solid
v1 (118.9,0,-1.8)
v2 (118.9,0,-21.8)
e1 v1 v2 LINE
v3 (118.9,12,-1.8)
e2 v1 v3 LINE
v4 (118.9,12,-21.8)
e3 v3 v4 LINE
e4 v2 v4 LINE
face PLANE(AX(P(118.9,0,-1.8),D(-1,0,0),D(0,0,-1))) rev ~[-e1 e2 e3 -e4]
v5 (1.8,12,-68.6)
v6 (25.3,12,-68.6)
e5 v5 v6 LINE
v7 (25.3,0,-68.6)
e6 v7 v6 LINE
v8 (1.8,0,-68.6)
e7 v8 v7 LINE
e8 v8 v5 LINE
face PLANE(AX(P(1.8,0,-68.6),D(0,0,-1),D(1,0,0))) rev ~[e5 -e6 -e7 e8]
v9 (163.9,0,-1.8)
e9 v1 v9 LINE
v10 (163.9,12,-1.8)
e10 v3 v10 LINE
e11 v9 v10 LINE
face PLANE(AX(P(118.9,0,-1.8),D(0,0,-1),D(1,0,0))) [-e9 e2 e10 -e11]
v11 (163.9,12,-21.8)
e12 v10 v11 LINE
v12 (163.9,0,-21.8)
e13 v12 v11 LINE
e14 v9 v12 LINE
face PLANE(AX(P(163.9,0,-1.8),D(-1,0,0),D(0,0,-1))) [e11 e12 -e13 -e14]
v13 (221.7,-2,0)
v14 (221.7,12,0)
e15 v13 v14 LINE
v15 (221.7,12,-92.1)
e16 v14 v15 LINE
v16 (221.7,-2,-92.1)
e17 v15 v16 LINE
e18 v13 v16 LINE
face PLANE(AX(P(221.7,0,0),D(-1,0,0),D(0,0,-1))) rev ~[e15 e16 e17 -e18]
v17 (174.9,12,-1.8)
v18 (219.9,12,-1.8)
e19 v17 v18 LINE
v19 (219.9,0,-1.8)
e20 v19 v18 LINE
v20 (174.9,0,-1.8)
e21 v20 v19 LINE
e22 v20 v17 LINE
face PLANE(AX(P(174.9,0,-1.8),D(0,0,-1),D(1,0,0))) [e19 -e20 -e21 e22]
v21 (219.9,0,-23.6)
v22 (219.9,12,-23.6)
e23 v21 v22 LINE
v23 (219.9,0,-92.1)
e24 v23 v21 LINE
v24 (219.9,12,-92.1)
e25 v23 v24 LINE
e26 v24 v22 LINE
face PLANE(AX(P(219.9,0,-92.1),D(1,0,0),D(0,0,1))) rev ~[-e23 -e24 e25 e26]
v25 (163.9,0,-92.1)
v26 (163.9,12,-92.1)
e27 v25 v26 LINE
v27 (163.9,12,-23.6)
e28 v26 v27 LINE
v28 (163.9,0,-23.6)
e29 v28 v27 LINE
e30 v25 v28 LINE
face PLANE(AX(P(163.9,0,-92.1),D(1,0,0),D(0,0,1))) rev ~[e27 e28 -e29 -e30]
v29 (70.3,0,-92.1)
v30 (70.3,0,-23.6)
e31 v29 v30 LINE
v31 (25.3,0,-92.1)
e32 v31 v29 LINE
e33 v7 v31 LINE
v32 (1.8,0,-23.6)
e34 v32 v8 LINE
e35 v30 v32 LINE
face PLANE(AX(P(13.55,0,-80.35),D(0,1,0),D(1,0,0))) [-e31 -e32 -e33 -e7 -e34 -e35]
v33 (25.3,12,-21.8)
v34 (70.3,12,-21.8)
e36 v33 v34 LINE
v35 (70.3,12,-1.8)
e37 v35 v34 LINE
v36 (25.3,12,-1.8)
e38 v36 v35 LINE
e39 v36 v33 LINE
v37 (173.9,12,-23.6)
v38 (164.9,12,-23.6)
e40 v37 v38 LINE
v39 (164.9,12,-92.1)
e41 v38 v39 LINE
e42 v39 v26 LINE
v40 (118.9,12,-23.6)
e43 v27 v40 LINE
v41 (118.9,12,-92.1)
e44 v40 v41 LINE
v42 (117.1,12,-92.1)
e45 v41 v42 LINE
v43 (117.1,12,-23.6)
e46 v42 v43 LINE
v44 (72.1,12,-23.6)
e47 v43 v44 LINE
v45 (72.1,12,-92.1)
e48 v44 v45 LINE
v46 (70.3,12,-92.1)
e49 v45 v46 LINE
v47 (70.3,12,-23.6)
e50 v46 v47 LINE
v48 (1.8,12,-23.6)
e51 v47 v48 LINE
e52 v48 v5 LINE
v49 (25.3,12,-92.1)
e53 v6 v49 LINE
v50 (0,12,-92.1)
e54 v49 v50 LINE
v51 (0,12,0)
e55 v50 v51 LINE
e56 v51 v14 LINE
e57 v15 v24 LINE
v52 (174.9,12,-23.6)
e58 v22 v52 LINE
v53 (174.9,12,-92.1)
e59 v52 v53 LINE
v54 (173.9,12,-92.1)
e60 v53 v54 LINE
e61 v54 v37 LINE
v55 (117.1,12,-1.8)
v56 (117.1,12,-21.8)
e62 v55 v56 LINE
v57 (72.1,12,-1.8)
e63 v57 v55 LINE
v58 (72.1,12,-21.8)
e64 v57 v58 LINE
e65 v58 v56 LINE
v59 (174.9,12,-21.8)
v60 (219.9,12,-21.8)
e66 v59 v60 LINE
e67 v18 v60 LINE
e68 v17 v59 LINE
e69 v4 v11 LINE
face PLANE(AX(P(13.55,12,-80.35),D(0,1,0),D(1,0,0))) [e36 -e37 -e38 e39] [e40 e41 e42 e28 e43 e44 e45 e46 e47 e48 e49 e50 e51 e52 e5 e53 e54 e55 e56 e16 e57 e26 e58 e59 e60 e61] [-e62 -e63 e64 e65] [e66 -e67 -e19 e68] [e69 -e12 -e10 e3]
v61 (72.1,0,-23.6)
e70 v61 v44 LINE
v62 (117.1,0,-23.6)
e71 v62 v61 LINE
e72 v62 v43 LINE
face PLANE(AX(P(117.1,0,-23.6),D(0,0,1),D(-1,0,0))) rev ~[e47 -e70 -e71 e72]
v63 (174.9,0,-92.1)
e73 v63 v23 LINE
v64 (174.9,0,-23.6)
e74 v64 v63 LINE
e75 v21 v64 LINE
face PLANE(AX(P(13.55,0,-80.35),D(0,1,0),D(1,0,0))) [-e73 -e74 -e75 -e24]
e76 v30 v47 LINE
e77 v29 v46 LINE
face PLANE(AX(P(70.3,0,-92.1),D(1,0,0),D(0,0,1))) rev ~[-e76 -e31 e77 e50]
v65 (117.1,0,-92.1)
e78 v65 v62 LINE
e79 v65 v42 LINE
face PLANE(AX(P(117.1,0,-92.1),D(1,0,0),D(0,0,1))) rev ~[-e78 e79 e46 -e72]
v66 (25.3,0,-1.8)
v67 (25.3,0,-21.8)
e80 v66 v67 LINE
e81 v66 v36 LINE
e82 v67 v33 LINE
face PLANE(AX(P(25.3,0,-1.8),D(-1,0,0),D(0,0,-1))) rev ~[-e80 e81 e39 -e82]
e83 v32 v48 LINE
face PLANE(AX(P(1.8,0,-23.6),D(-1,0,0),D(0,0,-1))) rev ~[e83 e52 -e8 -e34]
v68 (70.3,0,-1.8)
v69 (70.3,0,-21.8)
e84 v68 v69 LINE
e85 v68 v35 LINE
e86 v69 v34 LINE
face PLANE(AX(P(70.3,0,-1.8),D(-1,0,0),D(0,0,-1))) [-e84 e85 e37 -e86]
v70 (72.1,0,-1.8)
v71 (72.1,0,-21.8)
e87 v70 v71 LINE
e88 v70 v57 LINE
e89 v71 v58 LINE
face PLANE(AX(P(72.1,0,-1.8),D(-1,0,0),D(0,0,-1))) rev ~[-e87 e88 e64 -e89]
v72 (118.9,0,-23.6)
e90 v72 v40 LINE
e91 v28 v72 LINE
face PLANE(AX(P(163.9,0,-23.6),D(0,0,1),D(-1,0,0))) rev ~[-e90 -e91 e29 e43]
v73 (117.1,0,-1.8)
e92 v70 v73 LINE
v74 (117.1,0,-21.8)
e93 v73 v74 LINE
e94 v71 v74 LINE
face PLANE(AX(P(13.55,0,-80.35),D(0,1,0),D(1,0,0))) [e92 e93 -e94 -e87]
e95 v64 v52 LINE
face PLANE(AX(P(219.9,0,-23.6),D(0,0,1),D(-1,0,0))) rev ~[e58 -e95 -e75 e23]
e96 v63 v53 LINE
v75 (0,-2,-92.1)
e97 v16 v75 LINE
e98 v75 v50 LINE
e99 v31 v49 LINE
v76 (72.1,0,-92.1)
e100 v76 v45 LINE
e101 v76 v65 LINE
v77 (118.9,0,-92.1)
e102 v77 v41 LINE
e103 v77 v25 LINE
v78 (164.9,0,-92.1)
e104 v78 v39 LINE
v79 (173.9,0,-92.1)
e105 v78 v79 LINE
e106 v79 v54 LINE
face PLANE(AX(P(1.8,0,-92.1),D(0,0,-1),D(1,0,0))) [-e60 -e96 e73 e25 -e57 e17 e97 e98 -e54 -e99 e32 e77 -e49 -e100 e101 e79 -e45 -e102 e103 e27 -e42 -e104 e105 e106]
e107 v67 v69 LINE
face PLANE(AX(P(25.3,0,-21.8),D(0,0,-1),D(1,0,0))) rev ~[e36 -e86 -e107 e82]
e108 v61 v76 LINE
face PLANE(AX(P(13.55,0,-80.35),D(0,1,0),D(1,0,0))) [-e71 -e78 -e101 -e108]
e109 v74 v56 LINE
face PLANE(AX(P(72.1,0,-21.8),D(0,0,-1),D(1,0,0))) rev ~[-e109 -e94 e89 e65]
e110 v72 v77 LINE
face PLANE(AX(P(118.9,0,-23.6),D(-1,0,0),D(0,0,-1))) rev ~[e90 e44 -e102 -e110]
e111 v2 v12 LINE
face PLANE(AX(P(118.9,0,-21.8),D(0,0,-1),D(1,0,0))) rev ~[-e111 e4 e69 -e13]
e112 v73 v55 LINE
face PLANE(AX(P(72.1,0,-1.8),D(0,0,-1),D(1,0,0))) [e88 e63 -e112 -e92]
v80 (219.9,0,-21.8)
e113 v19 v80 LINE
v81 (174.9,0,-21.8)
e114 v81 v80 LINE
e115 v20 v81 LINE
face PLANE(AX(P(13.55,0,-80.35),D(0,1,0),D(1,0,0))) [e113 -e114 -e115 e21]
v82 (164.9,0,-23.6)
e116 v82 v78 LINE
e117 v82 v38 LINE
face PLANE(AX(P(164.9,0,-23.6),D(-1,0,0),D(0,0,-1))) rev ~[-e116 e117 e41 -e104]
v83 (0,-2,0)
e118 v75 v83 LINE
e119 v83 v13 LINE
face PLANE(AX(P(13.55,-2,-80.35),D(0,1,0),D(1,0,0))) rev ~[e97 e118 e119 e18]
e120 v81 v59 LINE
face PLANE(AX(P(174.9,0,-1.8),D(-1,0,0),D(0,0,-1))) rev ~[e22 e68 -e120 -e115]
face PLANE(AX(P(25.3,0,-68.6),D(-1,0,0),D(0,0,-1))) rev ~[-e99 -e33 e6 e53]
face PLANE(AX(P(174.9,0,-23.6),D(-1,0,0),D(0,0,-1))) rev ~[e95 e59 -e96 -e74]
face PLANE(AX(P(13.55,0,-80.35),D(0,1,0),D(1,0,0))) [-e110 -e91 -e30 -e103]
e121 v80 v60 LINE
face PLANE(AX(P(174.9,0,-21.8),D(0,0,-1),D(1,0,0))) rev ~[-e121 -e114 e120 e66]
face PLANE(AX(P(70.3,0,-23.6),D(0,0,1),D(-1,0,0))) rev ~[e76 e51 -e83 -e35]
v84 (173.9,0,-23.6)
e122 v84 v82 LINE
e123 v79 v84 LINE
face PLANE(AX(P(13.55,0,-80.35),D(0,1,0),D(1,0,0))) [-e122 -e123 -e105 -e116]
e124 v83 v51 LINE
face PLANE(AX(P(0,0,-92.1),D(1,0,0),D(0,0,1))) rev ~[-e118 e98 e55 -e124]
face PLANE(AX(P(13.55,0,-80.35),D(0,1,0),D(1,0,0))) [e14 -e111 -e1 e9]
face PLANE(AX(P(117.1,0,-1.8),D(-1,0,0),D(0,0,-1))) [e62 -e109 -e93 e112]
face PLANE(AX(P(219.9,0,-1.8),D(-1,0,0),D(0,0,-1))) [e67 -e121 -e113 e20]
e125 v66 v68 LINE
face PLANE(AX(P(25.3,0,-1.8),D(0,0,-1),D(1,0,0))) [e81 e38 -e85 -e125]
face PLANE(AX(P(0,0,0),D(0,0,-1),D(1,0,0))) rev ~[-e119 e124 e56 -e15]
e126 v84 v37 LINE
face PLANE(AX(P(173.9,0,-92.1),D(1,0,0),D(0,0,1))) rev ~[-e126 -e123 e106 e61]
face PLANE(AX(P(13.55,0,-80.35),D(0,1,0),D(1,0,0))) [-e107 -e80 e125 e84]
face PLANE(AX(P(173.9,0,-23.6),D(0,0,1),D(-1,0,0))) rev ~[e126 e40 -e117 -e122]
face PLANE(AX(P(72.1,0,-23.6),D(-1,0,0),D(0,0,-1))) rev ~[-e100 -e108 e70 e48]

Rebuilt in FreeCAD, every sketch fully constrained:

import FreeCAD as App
import Part
import Sketcher

V = App.Vector
Q = App.Units.Quantity


def add_polygon(sketch, points):
    """Adds a closed chain of lines whose ends are joined by coincident constraints."""
    first, n = sketch.GeometryCount, len(points)
    for a, b in zip(points, points[1:] + points[:1]):
        sketch.addGeometry(Part.LineSegment(App.Vector(*a, 0), App.Vector(*b, 0)), False)
    for i in range(n):
        sketch.addConstraint(Sketcher.Constraint("Coincident", first + i, 2, first + (i + 1) % n, 1))

doc = App.newDocument("Part")
body = doc.addObject("PartDesign::Body", "Body")

# Sketch on XZ plane
sketch1 = body.newObject("Sketcher::SketchObject", "Sketch")
sketch1.AttachmentSupport = (doc.getObject("XZ_Plane"), [""])
sketch1.MapMode = "FlatFace"
add_polygon(sketch1, [(0, -92), (0, 0), (222, 0), (222, -92)])  # lines 0-3
sketch1.addConstraint([
    Sketcher.Constraint("Vertical", 0),
    Sketcher.Constraint("Horizontal", 1),
    Sketcher.Constraint("Vertical", 2),
    Sketcher.Constraint("Horizontal", 3),
    Sketcher.Constraint("Coincident", 0, 2, -1, 1),
    Sketcher.Constraint("DistanceX", 1, 1, 1, 2, Q("221.7 mm")),
    Sketcher.Constraint("DistanceY", 0, 1, 0, 2, Q("92.1 mm")),
])
pad1 = body.newObject("PartDesign::Pad", "Pad")
pad1.Profile = sketch1
pad1.Length = 2

# Sketch on XZ plane
sketch2 = body.newObject("Sketcher::SketchObject", "Sketch001")
sketch2.AttachmentSupport = (doc.getObject("XZ_Plane"), [""])
sketch2.MapMode = "FlatFace"
add_polygon(sketch2, [(1.8, -68.6), (25.3, -68.6), (25.3, -92.1), (0, -92.1), (0, 0), (221.7, 0), (221.7, -92.1), (219.9, -92.1), (219.9, -23.6), (174.9, -23.6), (174.9, -92.1), (173.9, -92.1), (173.9, -23.6), (164.9, -23.6), (164.9, -92.1), (163.9, -92.1), (163.9, -23.6), (118.9, -23.6), (118.9, -92.1), (117.1, -92.1), (117.1, -23.6), (72.1, -23.6), (72.1, -92.1), (70.3, -92.1), (70.3, -23.6), (1.8, -23.6)])  # lines 0-25
add_polygon(sketch2, [(174.9, -1.8), (174.9, -21.8), (219.9, -21.8), (219.9, -1.8)])  # lines 26-29
add_polygon(sketch2, [(70.3, -1.8), (25.3, -1.8), (25.3, -21.8), (70.3, -21.8)])  # lines 30-33
add_polygon(sketch2, [(117.1, -1.8), (72.1, -1.8), (72.1, -21.8), (117.1, -21.8)])  # lines 34-37
add_polygon(sketch2, [(163.9, -1.8), (118.9, -1.8), (118.9, -21.8), (163.9, -21.8)])  # lines 38-41
sketch2.addConstraint([
    Sketcher.Constraint("Horizontal", 0),
    Sketcher.Constraint("Vertical", 1),
    Sketcher.Constraint("Horizontal", 2),
    Sketcher.Constraint("Vertical", 3),
    Sketcher.Constraint("Horizontal", 4),
    Sketcher.Constraint("Vertical", 5),
    Sketcher.Constraint("Horizontal", 6),
    Sketcher.Constraint("Vertical", 7),
    Sketcher.Constraint("Horizontal", 8),
    Sketcher.Constraint("Vertical", 9),
    Sketcher.Constraint("Horizontal", 10),
    Sketcher.Constraint("Vertical", 11),
    Sketcher.Constraint("Horizontal", 12),
    Sketcher.Constraint("Vertical", 13),
    Sketcher.Constraint("Horizontal", 14),
    Sketcher.Constraint("Vertical", 15),
    Sketcher.Constraint("Horizontal", 16),
    Sketcher.Constraint("Vertical", 17),
    Sketcher.Constraint("Horizontal", 18),
    Sketcher.Constraint("Vertical", 19),
    Sketcher.Constraint("Horizontal", 20),
    Sketcher.Constraint("Vertical", 21),
    Sketcher.Constraint("Horizontal", 22),
    Sketcher.Constraint("Vertical", 23),
    Sketcher.Constraint("Horizontal", 24),
    Sketcher.Constraint("Vertical", 25),
    Sketcher.Constraint("Vertical", 26),
    Sketcher.Constraint("Horizontal", 27),
    Sketcher.Constraint("Vertical", 28),
    Sketcher.Constraint("Horizontal", 29),
    Sketcher.Constraint("Horizontal", 30),
    Sketcher.Constraint("Vertical", 31),
    Sketcher.Constraint("Horizontal", 32),
    Sketcher.Constraint("Vertical", 33),
    Sketcher.Constraint("Horizontal", 34),
    Sketcher.Constraint("Vertical", 35),
    Sketcher.Constraint("Horizontal", 36),
    Sketcher.Constraint("Vertical", 37),
    Sketcher.Constraint("Horizontal", 38),
    Sketcher.Constraint("Vertical", 39),
    Sketcher.Constraint("Horizontal", 40),
    Sketcher.Constraint("Vertical", 41),
    Sketcher.Constraint("Coincident", 3, 2, -1, 1),
    Sketcher.Constraint("Horizontal", 2, 2, 5, 2),
    Sketcher.Constraint("Horizontal", 6, 2, 9, 2),
    Sketcher.Constraint("Horizontal", 8, 2, 11, 2),
    Sketcher.Constraint("Horizontal", 10, 2, 13, 2),
    Sketcher.Constraint("Horizontal", 12, 2, 15, 2),
    Sketcher.Constraint("Horizontal", 14, 2, 17, 2),
    Sketcher.Constraint("Horizontal", 16, 2, 19, 2),
    Sketcher.Constraint("Horizontal", 18, 2, 21, 2),
    Sketcher.Constraint("Horizontal", 20, 2, 23, 2),
    Sketcher.Constraint("Horizontal", 29, 2, 30, 2),
    Sketcher.Constraint("Horizontal", 27, 2, 31, 2),
    Sketcher.Constraint("Horizontal", 33, 2, 34, 2),
    Sketcher.Constraint("Horizontal", 32, 2, 35, 2),
    Sketcher.Constraint("Horizontal", 37, 2, 38, 2),
    Sketcher.Constraint("Horizontal", 36, 2, 39, 2),
    Sketcher.Constraint("Vertical", 9, 2, 26, 2),
    Sketcher.Constraint("Vertical", 7, 2, 27, 2),
    Sketcher.Constraint("Vertical", 1, 2, 30, 2),
    Sketcher.Constraint("Vertical", 23, 2, 32, 2),
    Sketcher.Constraint("Vertical", 21, 2, 34, 2),
    Sketcher.Constraint("Vertical", 19, 2, 36, 2),
    Sketcher.Constraint("Vertical", 17, 2, 38, 2),
    Sketcher.Constraint("Vertical", 15, 2, 40, 2),
    Sketcher.Constraint("Equal", 10, 14),
    Sketcher.Constraint("Equal", 8, 16),
    Sketcher.Constraint("Equal", 6, 18),
    Sketcher.Constraint("Equal", 16, 20),
    Sketcher.Constraint("Equal", 18, 22),
    Sketcher.Constraint("Equal", 29, 30),
    Sketcher.Constraint("Equal", 0, 1),
    Sketcher.Constraint("Equal", 24, 7),
    Sketcher.Constraint("DistanceX", 8, 2, 8, 1, Q("45 mm")),
    Sketcher.Constraint("DistanceX", 10, 2, 10, 1, Q("1 mm")),
    Sketcher.Constraint("DistanceX", 12, 2, 12, 1, Q("9 mm")),
    Sketcher.Constraint("DistanceY", 26, 2, 26, 1, Q("20 mm")),
    Sketcher.Constraint("DistanceX", 0, 1, 0, 2, Q("23.5 mm")),
    Sketcher.Constraint("DistanceX", 2, 2, 2, 1, Q("25.3 mm")),
    Sketcher.Constraint("DistanceX", 4, 1, 4, 2, Q("221.7 mm")),
    Sketcher.Constraint("DistanceY", 3, 1, 3, 2, Q("92.1 mm")),
    Sketcher.Constraint("DistanceY", 26, 2, -1, 1, Q("21.8 mm")),
])
pad2 = body.newObject("PartDesign::Pad", "Pad001")
pad2.Profile = sketch2
pad2.Length = 12
pad2.Reversed = True

doc.recompute()
